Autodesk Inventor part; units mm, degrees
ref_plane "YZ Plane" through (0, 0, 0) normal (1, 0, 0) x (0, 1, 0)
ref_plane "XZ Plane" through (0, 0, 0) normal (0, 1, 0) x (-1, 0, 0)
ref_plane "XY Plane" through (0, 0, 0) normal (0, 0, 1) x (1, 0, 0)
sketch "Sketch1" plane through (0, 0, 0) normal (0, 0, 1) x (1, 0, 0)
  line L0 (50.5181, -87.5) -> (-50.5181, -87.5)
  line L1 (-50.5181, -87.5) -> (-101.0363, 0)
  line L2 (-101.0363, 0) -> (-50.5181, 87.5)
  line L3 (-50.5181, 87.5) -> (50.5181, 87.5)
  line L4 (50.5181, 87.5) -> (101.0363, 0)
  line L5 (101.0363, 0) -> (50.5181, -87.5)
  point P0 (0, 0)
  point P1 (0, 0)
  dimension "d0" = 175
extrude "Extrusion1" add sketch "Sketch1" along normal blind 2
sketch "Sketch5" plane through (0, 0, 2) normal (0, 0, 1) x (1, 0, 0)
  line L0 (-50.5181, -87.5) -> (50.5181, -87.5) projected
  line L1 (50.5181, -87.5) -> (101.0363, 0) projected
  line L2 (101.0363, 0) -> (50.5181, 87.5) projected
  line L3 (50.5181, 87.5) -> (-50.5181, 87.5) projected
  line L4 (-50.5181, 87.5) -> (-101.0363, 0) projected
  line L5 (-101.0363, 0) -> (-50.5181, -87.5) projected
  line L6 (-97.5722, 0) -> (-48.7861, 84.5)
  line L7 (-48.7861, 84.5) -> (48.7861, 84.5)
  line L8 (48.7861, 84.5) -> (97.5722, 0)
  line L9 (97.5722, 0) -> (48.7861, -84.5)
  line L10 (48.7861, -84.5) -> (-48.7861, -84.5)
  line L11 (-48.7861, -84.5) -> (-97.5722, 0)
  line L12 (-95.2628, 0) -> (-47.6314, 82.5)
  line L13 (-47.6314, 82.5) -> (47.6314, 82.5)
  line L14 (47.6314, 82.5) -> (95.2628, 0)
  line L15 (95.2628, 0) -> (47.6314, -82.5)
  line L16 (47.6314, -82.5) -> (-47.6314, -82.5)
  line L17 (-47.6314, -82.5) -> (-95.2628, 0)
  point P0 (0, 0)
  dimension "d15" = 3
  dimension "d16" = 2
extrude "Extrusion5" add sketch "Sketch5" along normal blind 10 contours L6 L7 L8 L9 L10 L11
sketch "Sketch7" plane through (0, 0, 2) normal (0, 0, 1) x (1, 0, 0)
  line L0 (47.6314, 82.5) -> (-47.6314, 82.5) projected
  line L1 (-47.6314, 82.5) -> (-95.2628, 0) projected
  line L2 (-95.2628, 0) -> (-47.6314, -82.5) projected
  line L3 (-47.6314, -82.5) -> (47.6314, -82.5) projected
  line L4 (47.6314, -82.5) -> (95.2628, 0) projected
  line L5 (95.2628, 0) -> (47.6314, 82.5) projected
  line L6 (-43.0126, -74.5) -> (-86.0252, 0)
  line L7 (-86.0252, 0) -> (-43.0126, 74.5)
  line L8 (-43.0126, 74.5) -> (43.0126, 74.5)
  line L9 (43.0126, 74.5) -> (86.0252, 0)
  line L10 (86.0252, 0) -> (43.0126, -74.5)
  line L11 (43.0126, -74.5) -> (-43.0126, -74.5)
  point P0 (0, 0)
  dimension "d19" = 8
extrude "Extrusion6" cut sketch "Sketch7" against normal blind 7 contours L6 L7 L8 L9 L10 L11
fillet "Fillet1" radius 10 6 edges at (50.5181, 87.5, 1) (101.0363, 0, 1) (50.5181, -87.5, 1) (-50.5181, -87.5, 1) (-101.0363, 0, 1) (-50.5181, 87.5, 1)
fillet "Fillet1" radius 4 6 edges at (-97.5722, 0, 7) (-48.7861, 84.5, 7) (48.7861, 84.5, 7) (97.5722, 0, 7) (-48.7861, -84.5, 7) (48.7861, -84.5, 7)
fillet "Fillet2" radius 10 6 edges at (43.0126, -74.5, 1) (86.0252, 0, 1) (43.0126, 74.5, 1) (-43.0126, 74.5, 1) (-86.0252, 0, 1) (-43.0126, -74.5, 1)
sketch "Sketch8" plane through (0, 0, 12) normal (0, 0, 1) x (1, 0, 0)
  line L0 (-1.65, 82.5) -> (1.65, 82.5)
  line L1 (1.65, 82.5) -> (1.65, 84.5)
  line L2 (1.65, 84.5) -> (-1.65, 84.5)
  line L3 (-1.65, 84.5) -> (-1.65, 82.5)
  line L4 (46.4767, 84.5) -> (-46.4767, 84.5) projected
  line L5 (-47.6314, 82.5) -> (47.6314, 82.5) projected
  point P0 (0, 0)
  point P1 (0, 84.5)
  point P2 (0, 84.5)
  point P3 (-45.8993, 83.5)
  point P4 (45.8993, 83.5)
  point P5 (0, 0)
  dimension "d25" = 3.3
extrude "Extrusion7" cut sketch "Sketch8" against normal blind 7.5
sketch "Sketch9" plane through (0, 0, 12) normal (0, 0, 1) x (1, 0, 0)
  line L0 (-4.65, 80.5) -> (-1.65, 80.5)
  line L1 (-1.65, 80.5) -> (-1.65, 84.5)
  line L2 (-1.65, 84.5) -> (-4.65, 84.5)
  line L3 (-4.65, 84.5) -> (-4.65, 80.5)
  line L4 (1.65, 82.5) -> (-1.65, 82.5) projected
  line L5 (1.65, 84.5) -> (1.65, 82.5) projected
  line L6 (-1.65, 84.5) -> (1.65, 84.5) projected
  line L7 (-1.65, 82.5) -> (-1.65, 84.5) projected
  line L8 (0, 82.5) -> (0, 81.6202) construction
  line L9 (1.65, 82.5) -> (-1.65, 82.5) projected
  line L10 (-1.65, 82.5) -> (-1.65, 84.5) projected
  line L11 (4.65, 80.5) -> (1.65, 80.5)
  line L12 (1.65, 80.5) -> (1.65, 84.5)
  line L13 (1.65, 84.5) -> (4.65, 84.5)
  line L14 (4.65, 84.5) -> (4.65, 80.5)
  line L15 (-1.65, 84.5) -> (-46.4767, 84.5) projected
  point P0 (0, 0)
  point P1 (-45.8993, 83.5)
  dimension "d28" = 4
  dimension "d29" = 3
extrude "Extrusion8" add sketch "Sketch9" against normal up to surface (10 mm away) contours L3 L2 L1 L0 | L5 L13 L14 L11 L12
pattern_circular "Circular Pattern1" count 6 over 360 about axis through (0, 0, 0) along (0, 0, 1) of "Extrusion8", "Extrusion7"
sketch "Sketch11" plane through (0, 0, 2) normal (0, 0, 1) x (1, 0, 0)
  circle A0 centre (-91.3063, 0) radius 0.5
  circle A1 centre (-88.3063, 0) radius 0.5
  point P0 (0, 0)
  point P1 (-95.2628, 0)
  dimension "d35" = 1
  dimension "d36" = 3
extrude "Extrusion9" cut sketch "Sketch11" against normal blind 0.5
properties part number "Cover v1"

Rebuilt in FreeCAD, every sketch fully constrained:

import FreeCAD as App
import Part
import Sketcher
Q = App.Units.Quantity


def edges_at(feature, points):
    """Names of the edges that pass closest to the given points."""
    edges = feature.Shape.Edges
    near = lambda p: min(range(len(edges)), key=lambda i: edges[i].distToShape(Part.Vertex(*p))[0])
    return sorted({f"Edge{near(p) + 1}" for p in points})

doc = App.newDocument("Part")
body = doc.addObject("PartDesign::Body", "Body")

# Sketch on XY plane
sketch1 = body.newObject("Sketcher::SketchObject", "Sketch")
sketch1.AttachmentSupport = (doc.getObject("XY_Plane"), [""])
sketch1.MapMode = "FlatFace"
sketch1.addGeometry([
    Part.LineSegment(App.Vector(-51, -88, 0), App.Vector(51, -88, 0)),  # 0
    Part.LineSegment(App.Vector(51, -88, 0), App.Vector(101, 0, 0)),  # 1
    Part.LineSegment(App.Vector(101, 0, 0), App.Vector(51, 88, 0)),  # 2
    Part.LineSegment(App.Vector(51, 88, 0), App.Vector(-51, 88, 0)),  # 3
    Part.LineSegment(App.Vector(-51, 88, 0), App.Vector(-101, 0, 0)),  # 4
    Part.LineSegment(App.Vector(-101, 0, 0), App.Vector(-51, -88, 0)),  # 5
], False)
sketch1.addConstraint([
    Sketcher.Constraint("Coincident", 0, 2, 1, 1),
    Sketcher.Constraint("Coincident", 1, 2, 2, 1),
    Sketcher.Constraint("Coincident", 2, 2, 3, 1),
    Sketcher.Constraint("Coincident", 3, 2, 4, 1),
    Sketcher.Constraint("Coincident", 4, 2, 5, 1),
    Sketcher.Constraint("Coincident", 5, 2, 0, 1),
    Sketcher.Constraint("Horizontal", 0),
    Sketcher.Constraint("Horizontal", 3),
    Sketcher.Constraint("Symmetric", 0, 2, 3, 2, -1, 1),
    Sketcher.Constraint("Symmetric", 1, 2, 4, 2, -1, 1),
    Sketcher.Constraint("PointOnObject", 1, 2, -1),
    Sketcher.Constraint("Parallel", 2, 5),
    Sketcher.Constraint("Vertical", 0, 2, 2, 2),
    Sketcher.Constraint("DistanceY", 0, 2, 2, 2, Q("175 mm")),
    Sketcher.Constraint("Angle", 1, Q("60 deg")),
    Sketcher.Constraint("DistanceX", 0, 1, 0, 2, Q("101.0362 mm")),
])
pad1 = body.newObject("PartDesign::Pad", "Pad")
pad1.Profile = sketch1
pad1.Length = 2

# Sketch on XY plane
sketch2 = body.newObject("Sketcher::SketchObject", "Sketch001")
sketch2.AttachmentSupport = (doc.getObject("XY_Plane"), [""])
sketch2.MapMode = "FlatFace"
sketch2.AttachmentOffset = App.Placement(App.Vector(0, 0, 2), App.Rotation())
sketch2.addGeometry([
    Part.LineSegment(App.Vector(-49, 84, 0), App.Vector(-98, 0, 0)),  # 0
    Part.LineSegment(App.Vector(-98, 0, 0), App.Vector(-49, -84, 0)),  # 1
    Part.LineSegment(App.Vector(-49, -84, 0), App.Vector(49, -84, 0)),  # 2
    Part.LineSegment(App.Vector(49, -84, 0), App.Vector(98, 0, 0)),  # 3
    Part.LineSegment(App.Vector(98, 0, 0), App.Vector(49, 84, 0)),  # 4
    Part.LineSegment(App.Vector(49, 84, 0), App.Vector(-49, 84, 0)),  # 5
    Part.LineSegment(App.Vector(-48, -82, 0), App.Vector(-95, 0, 0)),  # 6
    Part.LineSegment(App.Vector(-95, 0, 0), App.Vector(-48, 82, 0)),  # 7
    Part.LineSegment(App.Vector(-48, 82, 0), App.Vector(48, 82, 0)),  # 8
    Part.LineSegment(App.Vector(48, 82, 0), App.Vector(95, 0, 0)),  # 9
    Part.LineSegment(App.Vector(95, 0, 0), App.Vector(48, -82, 0)),  # 10
    Part.LineSegment(App.Vector(48, -82, 0), App.Vector(-48, -82, 0)),  # 11
], False)
sketch2.addConstraint([
    Sketcher.Constraint("Coincident", 0, 2, 1, 1),
    Sketcher.Constraint("Coincident", 1, 2, 2, 1),
    Sketcher.Constraint("Coincident", 2, 2, 3, 1),
    Sketcher.Constraint("Coincident", 3, 2, 4, 1),
    Sketcher.Constraint("Coincident", 4, 2, 5, 1),
    Sketcher.Constraint("Coincident", 5, 2, 0, 1),
    Sketcher.Constraint("Coincident", 6, 2, 7, 1),
    Sketcher.Constraint("Coincident", 7, 2, 8, 1),
    Sketcher.Constraint("Coincident", 8, 2, 9, 1),
    Sketcher.Constraint("Coincident", 9, 2, 10, 1),
    Sketcher.Constraint("Coincident", 10, 2, 11, 1),
    Sketcher.Constraint("Coincident", 11, 2, 6, 1),
    Sketcher.Constraint("Horizontal", 2),
    Sketcher.Constraint("Horizontal", 5),
    Sketcher.Constraint("Horizontal", 8),
    Sketcher.Constraint("Horizontal", 11),
    Sketcher.Constraint("Symmetric", 0, 2, 3, 2, -1, 1),
    Sketcher.Constraint("Symmetric", 1, 2, 4, 2, -1, 1),
    Sketcher.Constraint("Symmetric", 6, 2, 9, 2, -1, 1),
    Sketcher.Constraint("Symmetric", 7, 2, 10, 2, -1, 1),
    Sketcher.Constraint("PointOnObject", 0, 2, -1),
    Sketcher.Constraint("PointOnObject", 6, 2, -1),
    Sketcher.Constraint("Parallel", 0, 3),
    Sketcher.Constraint("Parallel", 4, 6),
    Sketcher.Constraint("Parallel", 3, 7),
    Sketcher.Constraint("Parallel", 6, 9),
    Sketcher.Constraint("Vertical", 2, 2, 4, 2),
    Sketcher.Constraint("DistanceY", 7, 2, 5, 2, Q("2 mm")),
    Sketcher.Constraint("Angle", 0, Q("-120 deg")),
    Sketcher.Constraint("DistanceY", 2, 2, 4, 2, Q("169 mm")),
    Sketcher.Constraint("DistanceX", 2, 1, 2, 2, Q("97.5722 mm")),
    Sketcher.Constraint("DistanceX", 8, 1, 8, 2, Q("95.2628 mm")),
])
pad2 = body.newObject("PartDesign::Pad", "Pad001")
pad2.Profile = sketch2
pad2.Length = 10

# Sketch on XY plane
sketch3 = body.newObject("Sketcher::SketchObject", "Sketch002")
sketch3.AttachmentSupport = (doc.getObject("XY_Plane"), [""])
sketch3.MapMode = "FlatFace"
sketch3.AttachmentOffset = App.Placement(App.Vector(0, 0, 2), App.Rotation())
sketch3.addGeometry([
    Part.LineSegment(App.Vector(-86, 0, 0), App.Vector(-43, -74, 0)),  # 0
    Part.LineSegment(App.Vector(-43, -74, 0), App.Vector(43, -74, 0)),  # 1
    Part.LineSegment(App.Vector(43, -74, 0), App.Vector(86, 0, 0)),  # 2
    Part.LineSegment(App.Vector(86, 0, 0), App.Vector(43, 74, 0)),  # 3
    Part.LineSegment(App.Vector(43, 74, 0), App.Vector(-43, 74, 0)),  # 4
    Part.LineSegment(App.Vector(-43, 74, 0), App.Vector(-86, 0, 0)),  # 5
], False)
sketch3.addConstraint([
    Sketcher.Constraint("Coincident", 0, 2, 1, 1),
    Sketcher.Constraint("Coincident", 1, 2, 2, 1),
    Sketcher.Constraint("Coincident", 2, 2, 3, 1),
    Sketcher.Constraint("Coincident", 3, 2, 4, 1),
    Sketcher.Constraint("Coincident", 4, 2, 5, 1),
    Sketcher.Constraint("Coincident", 5, 2, 0, 1),
    Sketcher.Constraint("Horizontal", 1),
    Sketcher.Constraint("Horizontal", 4),
    Sketcher.Constraint("Symmetric", 0, 2, 3, 2, -1, 1),
    Sketcher.Constraint("Symmetric", 2, 2, 5, 2, -1, 1),
    Sketcher.Constraint("PointOnObject", 2, 2, -1),
    Sketcher.Constraint("Parallel", 2, 5),
    Sketcher.Constraint("Vertical", 1, 2, 3, 2),
    Sketcher.Constraint("Angle", 0, Q("-60 deg")),
    Sketcher.Constraint("DistanceY", 1, 2, 3, 2, Q("149 mm")),
    Sketcher.Constraint("DistanceX", 1, 1, 1, 2, Q("86.0252 mm")),
])
pocket1 = body.newObject("PartDesign::Pocket", "Pocket")
pocket1.Profile = sketch3
pocket1.Length = 7
doc.recompute()

fillet = body.newObject("PartDesign::Fillet", "Fillet")
fillet.Base = (pocket1, edges_at(pocket1, [
    (50.518, 87.5, 1),
    (101.036, 0, 1),
    (50.518, -87.5, 1),
    (-50.518, -87.5, 1),
    (-101.036, 0, 1),
    (-50.518, 87.5, 1),
]))
fillet.Radius = 10
doc.recompute()

fillet2 = body.newObject("PartDesign::Fillet", "Fillet001")
fillet2.Base = (fillet, edges_at(fillet, [
    (-97.572, 0, 7),
    (-48.786, 84.5, 7),
    (48.786, 84.5, 7),
    (97.572, 0, 7),
    (-48.786, -84.5, 7),
    (48.786, -84.5, 7),
]))
fillet2.Radius = 4
doc.recompute()

fillet3 = body.newObject("PartDesign::Fillet", "Fillet002")
fillet3.Base = (fillet2, edges_at(fillet2, [
    (43.013, -74.5, 1),
    (86.025, 0, 1),
    (43.013, 74.5, 1),
    (-43.013, 74.5, 1),
    (-86.025, 0, 1),
    (-43.013, -74.5, 1),
]))
fillet3.Radius = 10

# Sketch on XY plane
sketch4 = body.newObject("Sketcher::SketchObject", "Sketch003")
sketch4.AttachmentSupport = (doc.getObject("XY_Plane"), [""])
sketch4.MapMode = "FlatFace"
sketch4.AttachmentOffset = App.Placement(App.Vector(0, 0, 12), App.Rotation())
sketch4.addGeometry([
    Part.LineSegment(App.Vector(-1.6, 84.5, 0), App.Vector(-1.6, 82.5, 0)),
    Part.LineSegment(App.Vector(-1.6, 82.5, 0), App.Vector(1.6, 82.5, 0)),
    Part.LineSegment(App.Vector(1.6, 82.5, 0), App.Vector(1.6, 84.5, 0)),
    Part.LineSegment(App.Vector(1.6, 84.5, 0), App.Vector(-1.6, 84.5, 0)),
], False)
sketch4.addConstraint([
    Sketcher.Constraint("Coincident", 0, 2, 1, 1),
    Sketcher.Constraint("Coincident", 1, 2, 2, 1),
    Sketcher.Constraint("Coincident", 2, 2, 3, 1),
    Sketcher.Constraint("Coincident", 3, 2, 0, 1),
    Sketcher.Constraint("Vertical", 0),
    Sketcher.Constraint("Horizontal", 1),
    Sketcher.Constraint("Vertical", 2),
    Sketcher.Constraint("Horizontal", 3),
    Sketcher.Constraint("DistanceX", 1, 1, 1, 2, Q("3.3 mm")),
    Sketcher.Constraint("DistanceY", 0, 2, 0, 1, Q("2 mm")),
    Sketcher.Constraint("DistanceY", -1, 1, 0, 2, Q("82.5 mm")),
    Sketcher.Constraint("DistanceX", 0, 2, -1, 1, Q("1.65 mm")),
])
pocket2 = body.newObject("PartDesign::Pocket", "Pocket001")
pocket2.Profile = sketch4
pocket2.Length = 7.5

# Sketch on XY plane
sketch5 = body.newObject("Sketcher::SketchObject", "Sketch004")
sketch5.AttachmentSupport = (doc.getObject("XY_Plane"), [""])
sketch5.MapMode = "FlatFace"
sketch5.AttachmentOffset = App.Placement(App.Vector(0, 0, 12), App.Rotation())
sketch5.addGeometry([
    Part.LineSegment(App.Vector(-4.7, 84.5, 0), App.Vector(-4.7, 80.5, 0)),  # 0
    Part.LineSegment(App.Vector(-4.7, 80.5, 0), App.Vector(-1.6, 80.5, 0)),  # 1
    Part.LineSegment(App.Vector(-1.6, 80.5, 0), App.Vector(-1.6, 84.5, 0)),  # 2
    Part.LineSegment(App.Vector(-1.6, 84.5, 0), App.Vector(-4.7, 84.5, 0)),  # 3
    Part.LineSegment(App.Vector(1.6, 84.5, 0), App.Vector(1.6, 80.5, 0)),  # 4
    Part.LineSegment(App.Vector(1.6, 80.5, 0), App.Vector(4.7, 80.5, 0)),  # 5
    Part.LineSegment(App.Vector(4.7, 80.5, 0), App.Vector(4.7, 84.5, 0)),  # 6
    Part.LineSegment(App.Vector(4.7, 84.5, 0), App.Vector(1.6, 84.5, 0)),  # 7
], False)
sketch5.addConstraint([
    Sketcher.Constraint("Coincident", 0, 2, 1, 1),
    Sketcher.Constraint("Coincident", 1, 2, 2, 1),
    Sketcher.Constraint("Coincident", 2, 2, 3, 1),
    Sketcher.Constraint("Coincident", 3, 2, 0, 1),
    Sketcher.Constraint("Coincident", 4, 2, 5, 1),
    Sketcher.Constraint("Coincident", 5, 2, 6, 1),
    Sketcher.Constraint("Coincident", 6, 2, 7, 1),
    Sketcher.Constraint("Coincident", 7, 2, 4, 1),
    Sketcher.Constraint("Vertical", 0),
    Sketcher.Constraint("Horizontal", 1),
    Sketcher.Constraint("Vertical", 2),
    Sketcher.Constraint("Horizontal", 3),
    Sketcher.Constraint("Vertical", 4),
    Sketcher.Constraint("Horizontal", 5),
    Sketcher.Constraint("Vertical", 6),
    Sketcher.Constraint("Horizontal", 7),
    Sketcher.Constraint("Symmetric", 1, 2, 4, 2, -2),
    Sketcher.Constraint("Symmetric", 3, 2, 6, 2, -2),
    Sketcher.Constraint("DistanceX", 1, 1, 1, 2, Q("3 mm")),
    Sketcher.Constraint("DistanceY", 0, 2, 0, 1, Q("4 mm")),
    Sketcher.Constraint("DistanceY", -1, 1, 0, 2, Q("80.5 mm")),
    Sketcher.Constraint("DistanceX", 1, 2, 4, 2, Q("3.3 mm")),
])
pad3 = body.newObject("PartDesign::Pad", "Pad002")
pad3.Profile = sketch5
pad3.Length = 10
pad3.Reversed = True
doc.recompute()

polarpattern = body.newObject("PartDesign::PolarPattern", "PolarPattern")
polarpattern.Originals = [pad3, pocket2]
polarpattern.Axis = (doc.getObject("Z_Axis"), [""])
polarpattern.Angle = 360
polarpattern.Occurrences = 6
body.Tip = polarpattern

# Sketch on XY plane
sketch6 = body.newObject("Sketcher::SketchObject", "Sketch005")
sketch6.AttachmentSupport = (doc.getObject("XY_Plane"), [""])
sketch6.MapMode = "FlatFace"
sketch6.AttachmentOffset = App.Placement(App.Vector(0, 0, 2), App.Rotation())
sketch6.addGeometry([
    Part.Circle(App.Vector(-91.3, 0, 0), App.Vector(0, 0, 1), 0.5),
    Part.Circle(App.Vector(-88.3, 0, 0), App.Vector(0, 0, 1), 0.5),
], False)
sketch6.addConstraint([
    Sketcher.Constraint("Equal", 0, 1),
    Sketcher.Constraint("PointOnObject", 0, 3, -1),
    Sketcher.Constraint("PointOnObject", 1, 3, -1),
    Sketcher.Constraint("Diameter", 0, Q("1 mm")),
    Sketcher.Constraint("DistanceX", 0, 3, 1, 3, Q("3 mm")),
    Sketcher.Constraint("DistanceX", 0, 3, -1, 1, Q("91.3063 mm")),
])
pocket3 = body.newObject("PartDesign::Pocket", "Pocket002")
pocket3.Profile = sketch6
pocket3.Length = 0.5

doc.recompute()
